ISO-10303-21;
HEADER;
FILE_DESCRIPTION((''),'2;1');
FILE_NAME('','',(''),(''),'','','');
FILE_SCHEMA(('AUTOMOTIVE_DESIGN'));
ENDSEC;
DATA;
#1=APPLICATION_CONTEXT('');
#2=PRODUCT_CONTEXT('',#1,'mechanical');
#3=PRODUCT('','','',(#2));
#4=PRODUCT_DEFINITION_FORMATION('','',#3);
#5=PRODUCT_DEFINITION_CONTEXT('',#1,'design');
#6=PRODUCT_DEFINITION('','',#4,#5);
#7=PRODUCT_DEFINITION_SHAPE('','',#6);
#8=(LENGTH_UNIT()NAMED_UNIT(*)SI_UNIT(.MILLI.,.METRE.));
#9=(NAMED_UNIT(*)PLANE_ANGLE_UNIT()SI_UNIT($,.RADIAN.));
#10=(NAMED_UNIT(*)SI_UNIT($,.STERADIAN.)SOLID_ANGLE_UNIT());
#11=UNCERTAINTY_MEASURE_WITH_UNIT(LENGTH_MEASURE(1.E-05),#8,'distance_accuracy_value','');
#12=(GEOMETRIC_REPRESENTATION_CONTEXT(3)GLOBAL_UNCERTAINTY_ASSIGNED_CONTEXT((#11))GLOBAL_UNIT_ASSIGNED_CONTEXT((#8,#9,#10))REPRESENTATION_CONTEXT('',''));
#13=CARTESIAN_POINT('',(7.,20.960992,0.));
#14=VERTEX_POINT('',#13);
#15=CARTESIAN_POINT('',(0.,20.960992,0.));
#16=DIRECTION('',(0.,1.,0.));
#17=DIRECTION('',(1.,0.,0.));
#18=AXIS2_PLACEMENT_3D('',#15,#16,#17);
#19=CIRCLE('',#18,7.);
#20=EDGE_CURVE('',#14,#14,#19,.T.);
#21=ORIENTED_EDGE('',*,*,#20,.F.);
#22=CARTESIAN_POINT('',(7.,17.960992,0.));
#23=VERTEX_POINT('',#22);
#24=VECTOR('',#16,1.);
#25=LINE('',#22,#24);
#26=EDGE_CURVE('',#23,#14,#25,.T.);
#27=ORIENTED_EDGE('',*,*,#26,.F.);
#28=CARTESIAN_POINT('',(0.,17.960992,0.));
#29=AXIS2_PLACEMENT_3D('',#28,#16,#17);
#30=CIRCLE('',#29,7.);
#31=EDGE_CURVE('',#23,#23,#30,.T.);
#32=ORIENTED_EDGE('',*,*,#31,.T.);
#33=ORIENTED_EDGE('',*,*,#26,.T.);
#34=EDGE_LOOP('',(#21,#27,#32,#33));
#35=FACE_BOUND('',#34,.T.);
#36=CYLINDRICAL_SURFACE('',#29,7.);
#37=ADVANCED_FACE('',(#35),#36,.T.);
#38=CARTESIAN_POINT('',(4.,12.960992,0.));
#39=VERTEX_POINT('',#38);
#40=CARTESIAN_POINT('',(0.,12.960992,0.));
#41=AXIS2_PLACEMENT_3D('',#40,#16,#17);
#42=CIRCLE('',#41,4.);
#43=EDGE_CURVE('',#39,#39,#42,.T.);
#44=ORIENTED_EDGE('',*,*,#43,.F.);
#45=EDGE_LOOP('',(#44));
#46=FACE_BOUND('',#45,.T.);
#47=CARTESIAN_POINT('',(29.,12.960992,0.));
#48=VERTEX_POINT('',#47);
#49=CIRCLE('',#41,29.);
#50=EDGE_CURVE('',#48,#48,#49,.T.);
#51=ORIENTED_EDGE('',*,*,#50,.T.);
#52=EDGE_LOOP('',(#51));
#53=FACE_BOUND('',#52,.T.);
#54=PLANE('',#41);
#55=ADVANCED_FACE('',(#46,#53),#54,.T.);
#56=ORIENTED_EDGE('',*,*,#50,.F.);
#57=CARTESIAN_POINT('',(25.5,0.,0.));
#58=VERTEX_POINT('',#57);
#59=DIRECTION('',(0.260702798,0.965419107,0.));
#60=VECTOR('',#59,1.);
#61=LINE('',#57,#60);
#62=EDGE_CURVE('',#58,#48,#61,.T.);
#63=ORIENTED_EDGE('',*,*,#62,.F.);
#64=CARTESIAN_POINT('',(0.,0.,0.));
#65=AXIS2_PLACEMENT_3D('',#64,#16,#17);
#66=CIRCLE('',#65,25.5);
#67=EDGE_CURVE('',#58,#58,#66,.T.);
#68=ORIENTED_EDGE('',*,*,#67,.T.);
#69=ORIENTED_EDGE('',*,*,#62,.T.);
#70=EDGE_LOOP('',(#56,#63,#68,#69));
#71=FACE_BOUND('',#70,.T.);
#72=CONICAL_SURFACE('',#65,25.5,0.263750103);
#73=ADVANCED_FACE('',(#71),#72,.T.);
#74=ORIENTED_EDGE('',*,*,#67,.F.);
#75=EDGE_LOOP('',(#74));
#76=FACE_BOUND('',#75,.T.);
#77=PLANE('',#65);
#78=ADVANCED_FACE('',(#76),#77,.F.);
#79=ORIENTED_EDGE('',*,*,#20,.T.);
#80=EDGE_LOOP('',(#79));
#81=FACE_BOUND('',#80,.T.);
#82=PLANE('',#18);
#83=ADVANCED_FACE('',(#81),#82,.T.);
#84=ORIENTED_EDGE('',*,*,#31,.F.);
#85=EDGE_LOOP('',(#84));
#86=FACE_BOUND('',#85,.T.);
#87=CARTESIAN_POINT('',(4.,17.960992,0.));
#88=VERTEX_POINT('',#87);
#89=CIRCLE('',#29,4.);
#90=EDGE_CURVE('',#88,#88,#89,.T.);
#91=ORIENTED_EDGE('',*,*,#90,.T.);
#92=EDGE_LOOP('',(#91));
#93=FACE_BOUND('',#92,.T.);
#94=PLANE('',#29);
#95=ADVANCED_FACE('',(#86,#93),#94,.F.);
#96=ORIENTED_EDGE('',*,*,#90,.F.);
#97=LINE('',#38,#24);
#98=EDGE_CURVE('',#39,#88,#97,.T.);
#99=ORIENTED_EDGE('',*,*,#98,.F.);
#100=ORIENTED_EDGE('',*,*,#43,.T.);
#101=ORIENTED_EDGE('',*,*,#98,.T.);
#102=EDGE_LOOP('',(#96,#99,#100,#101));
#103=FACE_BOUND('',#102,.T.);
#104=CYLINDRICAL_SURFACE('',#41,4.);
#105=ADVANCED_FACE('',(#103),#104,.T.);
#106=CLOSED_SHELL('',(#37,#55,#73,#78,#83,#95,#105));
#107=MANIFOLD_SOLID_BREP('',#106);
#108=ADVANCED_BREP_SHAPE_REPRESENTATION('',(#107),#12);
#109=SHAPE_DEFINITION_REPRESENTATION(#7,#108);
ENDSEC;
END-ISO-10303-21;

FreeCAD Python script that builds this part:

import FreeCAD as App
import Part
import Sketcher
from FreeCAD import Vector
Q = App.Units.Quantity


def add_polygon(sketch, points):
    """Adds a closed chain of lines whose ends are joined by coincident constraints."""
    first, n = sketch.GeometryCount, len(points)
    for a, b in zip(points, points[1:] + points[:1]):
        sketch.addGeometry(Part.LineSegment(App.Vector(*a, 0), App.Vector(*b, 0)), False)
    for i in range(n):
        sketch.addConstraint(Sketcher.Constraint("Coincident", first + i, 2, first + (i + 1) % n, 1))

doc = App.newDocument("Part")
body = doc.addObject("PartDesign::Body", "Body")

# Sketch on XY plane
sketch1 = body.newObject("Sketcher::SketchObject", "Sketch")
sketch1.AttachmentSupport = (doc.getObject("XY_Plane"), [""])
sketch1.MapMode = "FlatFace"
add_polygon(sketch1, [(0, 0), (25.5, 0), (29, 13), (4, 13), (4, 18), (7, 18), (7, 21), (0, 21)])  # lines 0-7
sketch1.addConstraint([
    Sketcher.Constraint("Horizontal", 0),
    Sketcher.Constraint("Horizontal", 2),
    Sketcher.Constraint("Vertical", 3),
    Sketcher.Constraint("Horizontal", 4),
    Sketcher.Constraint("Vertical", 5),
    Sketcher.Constraint("Horizontal", 6),
    Sketcher.Constraint("Vertical", 7),
    Sketcher.Constraint("Coincident", 7, 2, -1, 1),
    Sketcher.Constraint("Equal", 4, 5),
    Sketcher.Constraint("DistanceX", 2, 2, 2, 1, Q("25 mm")),
    Sketcher.Constraint("DistanceX", 4, 1, 4, 2, Q("3 mm")),
    Sketcher.Constraint("DistanceX", 6, 2, 6, 1, Q("7 mm")),
    Sketcher.Constraint("DistanceY", 3, 1, 3, 2, Q("5 mm")),
    Sketcher.Constraint("DistanceX", 0, 1, 0, 2, Q("25.5 mm")),
    Sketcher.Constraint("Distance", 1, Q("13.425249 mm")),
])
revolution = body.newObject("PartDesign::Revolution", "Revolution")
revolution.Profile = sketch1
revolution.ReferenceAxis = (sketch1, ["V_Axis"])
revolution.Angle = 360

doc.recompute()
